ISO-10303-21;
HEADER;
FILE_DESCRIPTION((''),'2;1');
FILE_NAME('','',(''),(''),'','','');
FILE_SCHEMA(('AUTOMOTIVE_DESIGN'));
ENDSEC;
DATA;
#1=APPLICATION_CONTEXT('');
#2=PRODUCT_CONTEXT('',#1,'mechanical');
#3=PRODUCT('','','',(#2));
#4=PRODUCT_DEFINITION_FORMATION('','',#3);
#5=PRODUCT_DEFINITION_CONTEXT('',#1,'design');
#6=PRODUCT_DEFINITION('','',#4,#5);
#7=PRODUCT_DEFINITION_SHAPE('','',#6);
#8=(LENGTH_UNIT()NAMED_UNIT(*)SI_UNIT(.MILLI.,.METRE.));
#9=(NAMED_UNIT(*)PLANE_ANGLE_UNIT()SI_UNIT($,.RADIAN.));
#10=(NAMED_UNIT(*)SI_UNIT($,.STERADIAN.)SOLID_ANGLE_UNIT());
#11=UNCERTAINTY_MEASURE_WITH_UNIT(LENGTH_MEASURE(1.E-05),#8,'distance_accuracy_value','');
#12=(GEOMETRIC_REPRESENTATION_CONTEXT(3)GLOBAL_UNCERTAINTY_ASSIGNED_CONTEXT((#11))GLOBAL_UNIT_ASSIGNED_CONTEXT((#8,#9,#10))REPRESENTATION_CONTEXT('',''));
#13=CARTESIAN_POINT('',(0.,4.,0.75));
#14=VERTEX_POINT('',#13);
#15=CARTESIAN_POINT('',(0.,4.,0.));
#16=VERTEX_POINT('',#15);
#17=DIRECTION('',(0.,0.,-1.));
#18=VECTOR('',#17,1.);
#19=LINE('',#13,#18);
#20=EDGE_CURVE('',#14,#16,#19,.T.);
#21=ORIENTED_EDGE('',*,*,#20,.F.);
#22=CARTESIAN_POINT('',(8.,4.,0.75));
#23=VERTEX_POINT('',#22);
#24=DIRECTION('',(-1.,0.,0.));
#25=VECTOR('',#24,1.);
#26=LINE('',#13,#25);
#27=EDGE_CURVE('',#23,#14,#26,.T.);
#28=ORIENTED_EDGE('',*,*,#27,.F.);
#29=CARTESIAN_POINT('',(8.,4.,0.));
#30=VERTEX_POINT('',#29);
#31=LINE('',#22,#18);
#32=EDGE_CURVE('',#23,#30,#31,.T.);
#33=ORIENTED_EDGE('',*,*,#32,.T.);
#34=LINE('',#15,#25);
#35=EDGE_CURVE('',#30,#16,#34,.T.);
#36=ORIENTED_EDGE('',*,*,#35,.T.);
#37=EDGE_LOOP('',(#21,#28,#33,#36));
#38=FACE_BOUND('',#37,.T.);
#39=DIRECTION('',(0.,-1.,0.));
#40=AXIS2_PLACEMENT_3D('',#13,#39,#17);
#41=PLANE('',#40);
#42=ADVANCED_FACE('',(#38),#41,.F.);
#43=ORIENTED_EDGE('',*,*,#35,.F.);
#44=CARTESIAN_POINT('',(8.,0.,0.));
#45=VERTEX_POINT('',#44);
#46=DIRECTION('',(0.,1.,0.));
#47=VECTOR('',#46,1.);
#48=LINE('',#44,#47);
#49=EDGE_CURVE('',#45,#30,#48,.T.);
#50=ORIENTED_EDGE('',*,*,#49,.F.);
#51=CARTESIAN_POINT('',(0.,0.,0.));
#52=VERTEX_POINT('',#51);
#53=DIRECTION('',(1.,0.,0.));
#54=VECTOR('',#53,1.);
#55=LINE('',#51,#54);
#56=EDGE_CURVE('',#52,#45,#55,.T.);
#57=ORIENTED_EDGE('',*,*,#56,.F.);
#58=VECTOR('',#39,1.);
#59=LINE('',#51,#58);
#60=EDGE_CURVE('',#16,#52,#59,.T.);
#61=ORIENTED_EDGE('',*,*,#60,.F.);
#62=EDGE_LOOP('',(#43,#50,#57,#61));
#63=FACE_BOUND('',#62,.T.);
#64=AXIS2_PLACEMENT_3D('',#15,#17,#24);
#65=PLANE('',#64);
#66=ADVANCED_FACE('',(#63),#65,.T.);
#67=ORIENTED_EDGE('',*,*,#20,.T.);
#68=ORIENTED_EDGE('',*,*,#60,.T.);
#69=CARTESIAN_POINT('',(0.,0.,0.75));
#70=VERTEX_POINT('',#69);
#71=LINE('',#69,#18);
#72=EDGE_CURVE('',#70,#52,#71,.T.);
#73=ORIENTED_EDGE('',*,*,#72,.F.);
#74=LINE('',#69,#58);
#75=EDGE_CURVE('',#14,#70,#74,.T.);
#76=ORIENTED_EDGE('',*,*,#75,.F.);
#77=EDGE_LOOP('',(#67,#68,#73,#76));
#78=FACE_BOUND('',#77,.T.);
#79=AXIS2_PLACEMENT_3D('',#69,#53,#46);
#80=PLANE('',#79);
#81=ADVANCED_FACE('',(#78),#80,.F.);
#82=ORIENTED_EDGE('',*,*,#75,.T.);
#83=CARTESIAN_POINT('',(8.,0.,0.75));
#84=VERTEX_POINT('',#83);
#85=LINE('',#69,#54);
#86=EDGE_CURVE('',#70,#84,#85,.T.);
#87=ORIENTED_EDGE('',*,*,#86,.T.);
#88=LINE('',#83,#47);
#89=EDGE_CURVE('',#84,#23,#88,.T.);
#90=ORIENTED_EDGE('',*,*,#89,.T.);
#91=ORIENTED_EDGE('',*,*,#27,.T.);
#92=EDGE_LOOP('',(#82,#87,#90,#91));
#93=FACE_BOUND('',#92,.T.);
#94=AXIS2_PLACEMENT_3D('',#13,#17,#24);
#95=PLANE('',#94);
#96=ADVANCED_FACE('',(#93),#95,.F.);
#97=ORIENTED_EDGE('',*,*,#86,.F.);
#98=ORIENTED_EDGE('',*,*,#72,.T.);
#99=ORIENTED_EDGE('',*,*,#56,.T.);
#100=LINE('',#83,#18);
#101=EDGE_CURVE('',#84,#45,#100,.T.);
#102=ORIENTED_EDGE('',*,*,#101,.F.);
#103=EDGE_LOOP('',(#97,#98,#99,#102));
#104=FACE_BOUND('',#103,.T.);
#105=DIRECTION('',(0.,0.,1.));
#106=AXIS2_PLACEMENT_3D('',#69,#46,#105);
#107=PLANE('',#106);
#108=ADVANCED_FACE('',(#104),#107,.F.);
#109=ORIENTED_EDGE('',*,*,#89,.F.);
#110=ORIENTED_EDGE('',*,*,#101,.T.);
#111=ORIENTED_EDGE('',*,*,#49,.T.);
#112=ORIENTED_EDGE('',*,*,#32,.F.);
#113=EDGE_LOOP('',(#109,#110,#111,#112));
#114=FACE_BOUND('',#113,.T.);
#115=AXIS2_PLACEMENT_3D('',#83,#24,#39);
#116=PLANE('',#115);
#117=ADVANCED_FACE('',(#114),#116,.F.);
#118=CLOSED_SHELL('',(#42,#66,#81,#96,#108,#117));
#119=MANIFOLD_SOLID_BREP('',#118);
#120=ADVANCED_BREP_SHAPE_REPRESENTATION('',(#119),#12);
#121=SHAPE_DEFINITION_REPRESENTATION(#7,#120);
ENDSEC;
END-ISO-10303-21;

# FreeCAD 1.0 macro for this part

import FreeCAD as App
import Part
import Sketcher
Q = App.Units.Quantity


def add_polygon(sketch, points):
    """Adds a closed chain of lines whose ends are joined by coincident constraints."""
    first, n = sketch.GeometryCount, len(points)
    for a, b in zip(points, points[1:] + points[:1]):
        sketch.addGeometry(Part.LineSegment(App.Vector(*a, 0), App.Vector(*b, 0)), False)
    for i in range(n):
        sketch.addConstraint(Sketcher.Constraint("Coincident", first + i, 2, first + (i + 1) % n, 1))

doc = App.newDocument("Part")
body = doc.addObject("PartDesign::Body", "Body")

# Sketch on XY plane
sketch1 = body.newObject("Sketcher::SketchObject", "Sketch")
sketch1.AttachmentSupport = (doc.getObject("XY_Plane"), [""])
sketch1.MapMode = "FlatFace"
add_polygon(sketch1, [(0, 4), (0, 0), (8, 0), (8, 4)])  # lines 0-3
sketch1.addConstraint(Sketcher.Constraint("Vertical", 0))
sketch1.addConstraint(Sketcher.Constraint("Horizontal", 1))
sketch1.addConstraint(Sketcher.Constraint("Vertical", 2))
sketch1.addConstraint(Sketcher.Constraint("Horizontal", 3))
sketch1.addConstraint(Sketcher.Constraint("Coincident", 0, 2, -1, 1))
sketch1.addConstraint(Sketcher.Constraint("DistanceX", 1, 1, 1, 2, Q("8 mm")))
sketch1.addConstraint(Sketcher.Constraint("DistanceY", 0, 2, 0, 1, Q("4 mm")))
pad1 = body.newObject("PartDesign::Pad", "Pad")
pad1.Profile = sketch1
pad1.Length = 0.75

doc.recompute()
